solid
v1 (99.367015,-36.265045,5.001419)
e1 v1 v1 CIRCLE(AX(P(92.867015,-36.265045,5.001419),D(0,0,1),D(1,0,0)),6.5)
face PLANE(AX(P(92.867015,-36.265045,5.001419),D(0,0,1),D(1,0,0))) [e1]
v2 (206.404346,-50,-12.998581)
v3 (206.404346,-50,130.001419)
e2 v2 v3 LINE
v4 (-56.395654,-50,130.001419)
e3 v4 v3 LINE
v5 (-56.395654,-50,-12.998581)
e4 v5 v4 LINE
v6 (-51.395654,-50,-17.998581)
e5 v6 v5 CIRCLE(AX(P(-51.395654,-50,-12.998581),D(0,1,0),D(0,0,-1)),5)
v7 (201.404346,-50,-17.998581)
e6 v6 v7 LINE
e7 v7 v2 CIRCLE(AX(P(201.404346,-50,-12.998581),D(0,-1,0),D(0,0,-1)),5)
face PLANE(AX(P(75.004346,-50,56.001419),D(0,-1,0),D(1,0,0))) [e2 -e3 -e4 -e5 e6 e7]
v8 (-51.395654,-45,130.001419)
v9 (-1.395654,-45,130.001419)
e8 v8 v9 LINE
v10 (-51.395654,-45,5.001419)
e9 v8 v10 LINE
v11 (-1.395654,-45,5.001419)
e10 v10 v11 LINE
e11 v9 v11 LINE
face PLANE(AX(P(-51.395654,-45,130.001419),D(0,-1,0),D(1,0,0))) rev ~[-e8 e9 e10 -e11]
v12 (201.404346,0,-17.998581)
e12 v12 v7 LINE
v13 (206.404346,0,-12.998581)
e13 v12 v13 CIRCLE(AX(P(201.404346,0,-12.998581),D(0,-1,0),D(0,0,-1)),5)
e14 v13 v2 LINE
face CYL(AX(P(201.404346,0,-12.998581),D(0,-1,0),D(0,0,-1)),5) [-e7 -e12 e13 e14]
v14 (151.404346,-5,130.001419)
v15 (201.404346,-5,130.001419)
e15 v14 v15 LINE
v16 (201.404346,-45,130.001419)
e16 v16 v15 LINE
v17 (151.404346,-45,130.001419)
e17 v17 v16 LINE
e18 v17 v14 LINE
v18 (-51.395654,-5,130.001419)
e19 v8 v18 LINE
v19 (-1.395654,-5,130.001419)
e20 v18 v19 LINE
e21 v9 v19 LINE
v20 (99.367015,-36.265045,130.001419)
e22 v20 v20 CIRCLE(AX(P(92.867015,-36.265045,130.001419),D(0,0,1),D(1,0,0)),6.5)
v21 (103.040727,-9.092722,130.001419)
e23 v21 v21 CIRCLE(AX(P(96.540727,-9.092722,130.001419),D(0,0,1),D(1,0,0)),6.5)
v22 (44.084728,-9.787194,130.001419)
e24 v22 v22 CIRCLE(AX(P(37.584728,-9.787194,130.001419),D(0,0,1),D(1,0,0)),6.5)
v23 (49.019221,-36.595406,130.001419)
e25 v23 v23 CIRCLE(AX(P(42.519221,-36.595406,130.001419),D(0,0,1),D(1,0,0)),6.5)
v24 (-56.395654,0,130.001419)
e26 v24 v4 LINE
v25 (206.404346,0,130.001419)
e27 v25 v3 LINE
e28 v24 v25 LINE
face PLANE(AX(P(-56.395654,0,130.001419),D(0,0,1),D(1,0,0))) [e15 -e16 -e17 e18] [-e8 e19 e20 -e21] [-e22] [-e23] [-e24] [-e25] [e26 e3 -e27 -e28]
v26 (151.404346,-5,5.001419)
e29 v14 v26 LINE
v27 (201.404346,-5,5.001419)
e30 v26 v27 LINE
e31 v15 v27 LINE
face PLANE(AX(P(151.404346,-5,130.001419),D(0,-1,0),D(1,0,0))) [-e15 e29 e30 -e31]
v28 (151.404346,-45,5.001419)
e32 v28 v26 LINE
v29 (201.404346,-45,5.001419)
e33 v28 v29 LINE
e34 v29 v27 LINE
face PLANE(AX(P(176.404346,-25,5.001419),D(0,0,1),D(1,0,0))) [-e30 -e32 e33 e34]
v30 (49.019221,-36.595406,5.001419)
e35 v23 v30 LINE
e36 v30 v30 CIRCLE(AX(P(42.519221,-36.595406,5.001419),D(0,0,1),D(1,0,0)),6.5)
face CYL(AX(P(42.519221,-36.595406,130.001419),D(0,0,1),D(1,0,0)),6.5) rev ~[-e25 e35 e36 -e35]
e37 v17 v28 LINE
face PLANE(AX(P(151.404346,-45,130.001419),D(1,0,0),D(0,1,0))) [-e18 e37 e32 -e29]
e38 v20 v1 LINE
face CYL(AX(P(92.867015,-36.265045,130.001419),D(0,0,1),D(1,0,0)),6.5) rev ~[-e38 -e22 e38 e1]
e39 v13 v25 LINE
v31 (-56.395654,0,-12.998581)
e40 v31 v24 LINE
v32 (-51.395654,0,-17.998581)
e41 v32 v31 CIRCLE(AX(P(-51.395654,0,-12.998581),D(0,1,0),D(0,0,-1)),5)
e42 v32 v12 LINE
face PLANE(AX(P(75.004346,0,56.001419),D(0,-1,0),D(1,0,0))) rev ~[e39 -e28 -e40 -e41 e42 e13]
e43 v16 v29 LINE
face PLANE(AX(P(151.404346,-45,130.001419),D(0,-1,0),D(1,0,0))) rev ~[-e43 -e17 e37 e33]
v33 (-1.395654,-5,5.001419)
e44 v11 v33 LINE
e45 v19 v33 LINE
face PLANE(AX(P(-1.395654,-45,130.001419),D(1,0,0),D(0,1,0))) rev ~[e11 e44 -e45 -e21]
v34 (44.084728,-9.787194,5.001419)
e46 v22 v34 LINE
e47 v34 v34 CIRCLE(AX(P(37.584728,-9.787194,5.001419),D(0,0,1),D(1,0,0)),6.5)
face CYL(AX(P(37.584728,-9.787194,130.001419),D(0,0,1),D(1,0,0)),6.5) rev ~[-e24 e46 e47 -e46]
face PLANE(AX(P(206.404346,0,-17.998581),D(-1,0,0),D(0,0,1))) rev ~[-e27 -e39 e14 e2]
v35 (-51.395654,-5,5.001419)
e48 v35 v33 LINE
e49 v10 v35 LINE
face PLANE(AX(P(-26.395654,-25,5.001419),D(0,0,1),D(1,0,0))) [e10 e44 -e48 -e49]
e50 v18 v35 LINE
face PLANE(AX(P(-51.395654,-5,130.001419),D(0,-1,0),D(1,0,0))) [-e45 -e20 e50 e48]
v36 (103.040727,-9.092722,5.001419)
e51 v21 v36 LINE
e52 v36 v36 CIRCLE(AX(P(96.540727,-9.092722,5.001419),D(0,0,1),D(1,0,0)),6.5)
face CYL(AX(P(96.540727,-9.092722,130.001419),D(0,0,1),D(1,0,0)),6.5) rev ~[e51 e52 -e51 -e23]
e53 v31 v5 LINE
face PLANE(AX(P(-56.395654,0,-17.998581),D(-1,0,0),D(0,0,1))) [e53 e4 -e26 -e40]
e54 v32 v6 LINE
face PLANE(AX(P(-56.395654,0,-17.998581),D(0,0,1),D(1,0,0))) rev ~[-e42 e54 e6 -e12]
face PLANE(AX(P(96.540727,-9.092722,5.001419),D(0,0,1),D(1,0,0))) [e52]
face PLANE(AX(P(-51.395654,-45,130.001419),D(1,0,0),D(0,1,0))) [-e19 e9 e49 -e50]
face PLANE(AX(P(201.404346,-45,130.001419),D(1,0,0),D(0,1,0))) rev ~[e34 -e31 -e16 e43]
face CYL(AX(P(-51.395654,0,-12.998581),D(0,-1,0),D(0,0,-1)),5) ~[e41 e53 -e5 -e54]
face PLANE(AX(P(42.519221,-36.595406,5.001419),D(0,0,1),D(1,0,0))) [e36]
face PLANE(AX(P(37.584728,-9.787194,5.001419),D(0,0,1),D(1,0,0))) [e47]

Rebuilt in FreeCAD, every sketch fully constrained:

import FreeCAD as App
import Part
import Sketcher
from FreeCAD import Vector
Q = App.Units.Quantity


def edges_at(feature, points):
    """Names of the edges that pass closest to the given points."""
    edges = feature.Shape.Edges
    near = lambda p: min(range(len(edges)), key=lambda i: edges[i].distToShape(Part.Vertex(*p))[0])
    return sorted({f"Edge{near(p) + 1}" for p in points})


def add_polygon(sketch, points):
    """Adds a closed chain of lines whose ends are joined by coincident constraints."""
    first, n = sketch.GeometryCount, len(points)
    for a, b in zip(points, points[1:] + points[:1]):
        sketch.addGeometry(Part.LineSegment(App.Vector(*a, 0), App.Vector(*b, 0)), False)
    for i in range(n):
        sketch.addConstraint(Sketcher.Constraint("Coincident", first + i, 2, first + (i + 1) % n, 1))

doc = App.newDocument("Part")
params = doc.addObject("Spreadsheet::Sheet", "Params")
for row, (alias, value) in enumerate([
    ("sketch1_height", "148 mm"),
    ("sketch1_width", "262.8 mm"),
    ("pad1_length", "50 mm"),
    ("fillet_radius", "5 mm"),
    ("fillet2_radius", "5 mm"),
    ("sketch2_diameter", "13 mm"),
    ("sketch2_width", "50 mm"),
    ("sketch2_height", "40 mm"),
    ("pocket1_length", "125 mm"),
], start=1):
    params.set(f"A{row}", alias)
    params.set(f"B{row}", "=" + value)
    params.setAlias(f"B{row}", alias)

body = doc.addObject("PartDesign::Body", "Body")

# Sketch on XZ plane
sketch1 = body.newObject("Sketcher::SketchObject", "Sketch")
sketch1.AttachmentSupport = (doc.getObject("XZ_Plane"), [""])
sketch1.MapMode = "FlatFace"
add_polygon(sketch1, [(-56, 130), (-56, -18), (206, -18), (206, 130)])  # lines 0-3
sketch1.addConstraint(Sketcher.Constraint("Vertical", 0))
sketch1.addConstraint(Sketcher.Constraint("Horizontal", 1))
sketch1.addConstraint(Sketcher.Constraint("Vertical", 2))
sketch1.addConstraint(Sketcher.Constraint("Horizontal", 3))
sketch1.addConstraint(Sketcher.Constraint("DistanceY", 0, 2, 0, 1, Q("148 mm")))
sketch1.addConstraint(Sketcher.Constraint("DistanceX", 1, 1, 1, 2, Q("262.8 mm")))
sketch1.addConstraint(Sketcher.Constraint("DistanceY", 0, 2, -1, 1, Q("17.998581 mm")))
sketch1.addConstraint(Sketcher.Constraint("DistanceX", 0, 2, -1, 1, Q("56.395654 mm")))
sketch1.setExpression("Constraints[8]", "Params.sketch1_height")
sketch1.setExpression("Constraints[9]", "Params.sketch1_width")
pad1 = body.newObject("PartDesign::Pad", "Pad")
pad1.Profile = sketch1
pad1.setExpression("Length", "Params.pad1_length")
doc.recompute()

fillet = body.newObject("PartDesign::Fillet", "Fillet")
fillet.Base = (pad1, edges_at(pad1, [(206.404, -25, -17.999)]))
fillet.setExpression("Radius", "Params.fillet_radius")
doc.recompute()

fillet2 = body.newObject("PartDesign::Fillet", "Fillet001")
fillet2.Base = (fillet, edges_at(fillet, [(-56.396, -25, -17.999)]))
fillet2.setExpression("Radius", "Params.fillet2_radius")

# Sketch on XY plane
sketch2 = body.newObject("Sketcher::SketchObject", "Sketch001")
sketch2.AttachmentSupport = (doc.getObject("XY_Plane"), [""])
sketch2.MapMode = "FlatFace"
sketch2.AttachmentOffset = App.Placement(Vector(0, 0, 130.001419), App.Rotation())
add_polygon(sketch2, [(-51, -5), (-51, -45), (-1, -45), (-1, -5)])  # lines 0-3
sketch2.addGeometry(Part.Circle(Vector(38, -10, 0), Vector(0, 0, 1), 6), False)  # 4
sketch2.addGeometry(Part.Circle(Vector(97, -9, 0), Vector(0, 0, 1), 6), False)  # 5
sketch2.addGeometry(Part.Circle(Vector(43, -37, 0), Vector(0, 0, 1), 6), False)  # 6
sketch2.addGeometry(Part.Circle(Vector(93, -36, 0), Vector(0, 0, 1), 6), False)  # 7
add_polygon(sketch2, [(151, -5), (151, -45), (201, -45), (201, -5)])  # lines 8-11
sketch2.addConstraint(Sketcher.Constraint("Vertical", 0))
sketch2.addConstraint(Sketcher.Constraint("Horizontal", 1))
sketch2.addConstraint(Sketcher.Constraint("Vertical", 2))
sketch2.addConstraint(Sketcher.Constraint("Horizontal", 3))
sketch2.addConstraint(Sketcher.Constraint("Vertical", 8))
sketch2.addConstraint(Sketcher.Constraint("Horizontal", 9))
sketch2.addConstraint(Sketcher.Constraint("Vertical", 10))
sketch2.addConstraint(Sketcher.Constraint("Horizontal", 11))
sketch2.addConstraint(Sketcher.Constraint("Equal", 4, 5))
sketch2.addConstraint(Sketcher.Constraint("Equal", 5, 6))
sketch2.addConstraint(Sketcher.Constraint("Equal", 6, 7))
sketch2.addConstraint(Sketcher.Constraint("Horizontal", 1, 2, 8, 2))
sketch2.addConstraint(Sketcher.Constraint("Horizontal", 3, 2, 10, 2))
sketch2.addConstraint(Sketcher.Constraint("Equal", 3, 9))
sketch2.addConstraint(Sketcher.Constraint("Diameter", 4, Q("13 mm")))
sketch2.addConstraint(Sketcher.Constraint("DistanceX", 1, 1, 1, 2, Q("50 mm")))
sketch2.addConstraint(Sketcher.Constraint("DistanceY", 0, 2, 0, 1, Q("40 mm")))
sketch2.addConstraint(Sketcher.Constraint("DistanceY", 0, 2, -1, 1, Q("45 mm")))
sketch2.addConstraint(Sketcher.Constraint("DistanceX", 1, 2, 8, 2, Q("152.8 mm")))
sketch2.addConstraint(Sketcher.Constraint("DistanceX", 4, 3, 5, 3, Q("58.955999 mm")))
sketch2.addConstraint(Sketcher.Constraint("DistanceX", -1, 1, 6, 3, Q("42.519221 mm")))
sketch2.addConstraint(Sketcher.Constraint("DistanceY", 4, 3, 5, 3, Q("0.694472 mm")))
sketch2.addConstraint(Sketcher.Constraint("DistanceY", 6, 3, 4, 3, Q("26.808212 mm")))
sketch2.addConstraint(Sketcher.Constraint("DistanceY", 6, 3, 7, 3, Q("0.330361 mm")))
sketch2.addConstraint(Sketcher.Constraint("DistanceX", 0, 2, 4, 3, Q("88.980382 mm")))
sketch2.addConstraint(Sketcher.Constraint("DistanceX", 0, 2, 7, 3, Q("144.262669 mm")))
sketch2.addConstraint(Sketcher.Constraint("DistanceX", -1, 1, 4, 3, Q("37.584728 mm")))
sketch2.addConstraint(Sketcher.Constraint("DistanceY", 4, 3, -1, 1, Q("9.787194 mm")))
sketch2.setExpression("Constraints[22]", "Params.sketch2_diameter")
sketch2.setExpression("Constraints[23]", "Params.sketch2_width")
sketch2.setExpression("Constraints[24]", "Params.sketch2_height")
pocket1 = body.newObject("PartDesign::Pocket", "Pocket")
pocket1.Profile = sketch2
pocket1.setExpression("Length", "Params.pocket1_length")

doc.recompute()
